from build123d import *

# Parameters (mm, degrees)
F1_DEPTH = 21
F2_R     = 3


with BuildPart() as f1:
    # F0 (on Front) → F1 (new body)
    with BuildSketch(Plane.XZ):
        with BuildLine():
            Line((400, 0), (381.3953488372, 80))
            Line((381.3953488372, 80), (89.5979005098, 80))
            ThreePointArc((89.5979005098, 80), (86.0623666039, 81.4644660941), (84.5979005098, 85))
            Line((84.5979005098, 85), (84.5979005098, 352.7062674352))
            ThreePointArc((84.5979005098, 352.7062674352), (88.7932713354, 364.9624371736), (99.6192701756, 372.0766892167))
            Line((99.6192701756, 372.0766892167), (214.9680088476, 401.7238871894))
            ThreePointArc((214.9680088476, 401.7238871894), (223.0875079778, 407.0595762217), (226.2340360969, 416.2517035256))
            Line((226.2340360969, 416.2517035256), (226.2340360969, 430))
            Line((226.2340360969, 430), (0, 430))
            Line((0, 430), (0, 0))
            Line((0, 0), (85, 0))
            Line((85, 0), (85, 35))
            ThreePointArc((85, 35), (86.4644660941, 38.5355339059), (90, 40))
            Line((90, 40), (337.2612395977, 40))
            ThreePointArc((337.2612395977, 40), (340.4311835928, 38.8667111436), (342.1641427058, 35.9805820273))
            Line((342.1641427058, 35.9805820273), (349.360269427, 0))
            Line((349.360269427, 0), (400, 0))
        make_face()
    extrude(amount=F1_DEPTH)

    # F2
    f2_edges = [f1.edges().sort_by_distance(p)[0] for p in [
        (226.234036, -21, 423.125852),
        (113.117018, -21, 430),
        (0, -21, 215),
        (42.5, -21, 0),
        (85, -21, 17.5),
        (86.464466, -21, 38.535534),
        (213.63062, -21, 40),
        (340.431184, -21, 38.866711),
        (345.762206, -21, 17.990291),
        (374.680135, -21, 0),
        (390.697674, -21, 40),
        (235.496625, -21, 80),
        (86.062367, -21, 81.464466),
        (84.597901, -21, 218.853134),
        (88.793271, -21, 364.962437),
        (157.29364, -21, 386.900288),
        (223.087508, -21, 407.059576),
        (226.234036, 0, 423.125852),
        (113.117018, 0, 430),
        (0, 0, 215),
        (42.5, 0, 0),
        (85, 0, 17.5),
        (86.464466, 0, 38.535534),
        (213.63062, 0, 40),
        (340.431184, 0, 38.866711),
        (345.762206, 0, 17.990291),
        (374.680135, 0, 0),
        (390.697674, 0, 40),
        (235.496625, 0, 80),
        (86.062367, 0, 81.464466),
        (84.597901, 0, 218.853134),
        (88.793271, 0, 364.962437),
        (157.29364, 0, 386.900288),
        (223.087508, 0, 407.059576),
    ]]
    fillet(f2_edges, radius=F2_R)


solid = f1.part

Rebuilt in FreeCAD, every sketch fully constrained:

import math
import FreeCAD as App
import Part
import Sketcher

V = App.Vector


def edges_at(feature, points):
    """Names of the edges that pass closest to the given points."""
    edges = feature.Shape.Edges
    near = lambda p: min(range(len(edges)), key=lambda i: edges[i].distToShape(Part.Vertex(*p))[0])
    return sorted({f"Edge{near(p) + 1}" for p in points})

doc = App.newDocument("Part")
params = doc.addObject("Spreadsheet::Sheet", "Params")
for row, (alias, value) in enumerate([
    ("sketch1_radius", "5 mm"),
    ("sketch1_radius2", "20 mm"),
    ("sketch1_radius3", "15 mm"),
    ("sketch1_width", "85 mm"),
    ("sketch1_height", "430 mm"),
    ("pad1_length", "21 mm"),
    ("fillet_radius", "3 mm"),
], start=1):
    params.set(f"A{row}", alias)
    params.set(f"B{row}", "=" + value)
    params.setAlias(f"B{row}", alias)

body = doc.addObject("PartDesign::Body", "Body")

# Sketch on XZ plane
sketch1 = body.newObject("Sketcher::SketchObject", "Sketch")
sketch1.AttachmentSupport = (doc.getObject("XZ_Plane"), [""])
sketch1.MapMode = "FlatFace"
sketch1.addGeometry([
    Part.LineSegment(V(400, 0, 0), V(381, 80, 0)),  # 0
    Part.LineSegment(V(381, 80, 0), V(90, 80, 0)),  # 1
    Part.ArcOfCircle(Part.Circle(V(90, 85, 0), V(0, 0, 1), 5), math.radians(180), math.radians(270)),  # 2
    Part.LineSegment(V(85, 85, 0), V(85, 353, 0)),  # 3
    Part.ArcOfCircle(Part.Circle(V(105, 353, 0), V(0, 0, 1), 20), math.radians(104), math.radians(180)),  # 4
    Part.LineSegment(V(100, 372, 0), V(215, 402, 0)),  # 5
    Part.ArcOfCircle(Part.Circle(V(211, 416, 0), V(0, 0, 1), 15), math.radians(-76), math.radians(0)),  # 6
    Part.LineSegment(V(226, 416, 0), V(226, 430, 0)),  # 7
    Part.LineSegment(V(226, 430, 0), V(0, 430, 0)),  # 8
    Part.LineSegment(V(0, 430, 0), V(0, 0, 0)),  # 9
    Part.LineSegment(V(0, 0, 0), V(85, 0, 0)),  # 10
    Part.LineSegment(V(85, 0, 0), V(85, 35, 0)),  # 11
    Part.ArcOfCircle(Part.Circle(V(90, 35, 0), V(0, 0, 1), 5), math.radians(90), math.radians(180)),  # 12
    Part.LineSegment(V(90, 40, 0), V(337, 40, 0)),  # 13
    Part.ArcOfCircle(Part.Circle(V(337, 35, 0), V(0, 0, 1), 5), math.radians(11), math.radians(90)),  # 14
    Part.LineSegment(V(342, 36, 0), V(349, 0, 0)),  # 15
    Part.LineSegment(V(349, 0, 0), V(400, 0, 0)),  # 16
], False)
sketch1.addConstraint([
    Sketcher.Constraint("Coincident", 0, 2, 1, 1),
    Sketcher.Constraint("Tangent", 1, 2, 2, 2),
    Sketcher.Constraint("Tangent", 2, 1, 3, 1),
    Sketcher.Constraint("Tangent", 3, 2, 4, 2),
    Sketcher.Constraint("Tangent", 4, 1, 5, 1),
    Sketcher.Constraint("Tangent", 5, 2, 6, 1),
    Sketcher.Constraint("Tangent", 6, 2, 7, 1),
    Sketcher.Constraint("Coincident", 7, 2, 8, 1),
    Sketcher.Constraint("Coincident", 8, 2, 9, 1),
    Sketcher.Constraint("Coincident", 9, 2, 10, 1),
    Sketcher.Constraint("Coincident", 10, 2, 11, 1),
    Sketcher.Constraint("Tangent", 11, 2, 12, 2),
    Sketcher.Constraint("Tangent", 12, 1, 13, 1),
    Sketcher.Constraint("Tangent", 13, 2, 14, 2),
    Sketcher.Constraint("Tangent", 14, 1, 15, 1),
    Sketcher.Constraint("Coincident", 15, 2, 16, 1),
    Sketcher.Constraint("Coincident", 16, 2, 0, 1),
    Sketcher.Constraint("Horizontal", 1),
    Sketcher.Constraint("Vertical", 3),
    Sketcher.Constraint("Vertical", 7),
    Sketcher.Constraint("Horizontal", 8),
    Sketcher.Constraint("Vertical", 9),
    Sketcher.Constraint("Horizontal", 10),
    Sketcher.Constraint("Vertical", 11),
    Sketcher.Constraint("Horizontal", 13),
    Sketcher.Constraint("Horizontal", 16),
    Sketcher.Constraint("Coincident", 9, 2, -1, 1),
    Sketcher.Constraint("Equal", 2, 12),
    Sketcher.Constraint("Equal", 12, 14),
    Sketcher.Constraint("PointOnObject", 15, 2, -1),
    Sketcher.Constraint("Radius", 2, 5.0),
    Sketcher.Constraint("Radius", 4, 20.0),
    Sketcher.Constraint("Radius", 6, 15.0),
    Sketcher.Constraint("DistanceX", 10, 1, 10, 2, 85.0),
    Sketcher.Constraint("DistanceY", 9, 2, 9, 1, 430.0),
    Sketcher.Constraint("DistanceY", 11, 1, 11, 2, 35.0),
    Sketcher.Constraint("DistanceY", -1, 1, 2, 3, 85.0),
    Sketcher.Constraint("DistanceX", -1, 1, 16, 2, 400.0),
    Sketcher.Constraint("DistanceX", 1, 2, 1, 1, 291.797448),
    Sketcher.Constraint("DistanceX", 13, 1, 13, 2, 247.26124),
    Sketcher.Constraint("DistanceX", 16, 1, 16, 2, 50.639731),
    Sketcher.Constraint("DistanceX", -1, 1, 2, 3, 89.597901),
    Sketcher.Constraint("DistanceX", 8, 2, 8, 1, 226.234036),
    Sketcher.Constraint("DistanceY", 3, 1, 3, 2, 267.706267),
    Sketcher.Constraint("DistanceY", 7, 1, 7, 2, 13.748296),
])
sketch1.setExpression("Constraints[30]", "Params.sketch1_radius")
sketch1.setExpression("Constraints[31]", "Params.sketch1_radius2")
sketch1.setExpression("Constraints[32]", "Params.sketch1_radius3")
sketch1.setExpression("Constraints[33]", "Params.sketch1_width")
sketch1.setExpression("Constraints[34]", "Params.sketch1_height")
pad1 = body.newObject("PartDesign::Pad", "Pad")
pad1.Profile = sketch1
pad1.setExpression("Length", "Params.pad1_length")
doc.recompute()

fillet = body.newObject("PartDesign::Fillet", "Fillet")
fillet.Base = (pad1, edges_at(pad1, [
    (226.234, -21, 423.126),
    (113.117, -21, 430),
    (0, -21, 215),
    (42.5, -21, 0),
    (85, -21, 17.5),
    (86.464, -21, 38.536),
    (213.631, -21, 40),
    (340.431, -21, 38.867),
    (345.762, -21, 17.99),
    (374.68, -21, 0),
    (390.698, -21, 40),
    (235.497, -21, 80),
    (86.062, -21, 81.464),
    (84.598, -21, 218.853),
    (88.793, -21, 364.962),
    (157.294, -21, 386.9),
    (223.088, -21, 407.06),
    (226.234, 0, 423.126),
    (113.117, 0, 430),
    (0, 0, 215),
    (42.5, 0, 0),
    (85, 0, 17.5),
    (86.464, 0, 38.536),
    (213.631, 0, 40),
    (340.431, 0, 38.867),
    (345.762, 0, 17.99),
    (374.68, 0, 0),
    (390.698, 0, 40),
    (235.497, 0, 80),
    (86.062, 0, 81.464),
    (84.598, 0, 218.853),
    (88.793, 0, 364.962),
    (157.294, 0, 386.9),
    (223.088, 0, 407.06),
]))
fillet.setExpression("Radius", "Params.fillet_radius")

doc.recompute()
